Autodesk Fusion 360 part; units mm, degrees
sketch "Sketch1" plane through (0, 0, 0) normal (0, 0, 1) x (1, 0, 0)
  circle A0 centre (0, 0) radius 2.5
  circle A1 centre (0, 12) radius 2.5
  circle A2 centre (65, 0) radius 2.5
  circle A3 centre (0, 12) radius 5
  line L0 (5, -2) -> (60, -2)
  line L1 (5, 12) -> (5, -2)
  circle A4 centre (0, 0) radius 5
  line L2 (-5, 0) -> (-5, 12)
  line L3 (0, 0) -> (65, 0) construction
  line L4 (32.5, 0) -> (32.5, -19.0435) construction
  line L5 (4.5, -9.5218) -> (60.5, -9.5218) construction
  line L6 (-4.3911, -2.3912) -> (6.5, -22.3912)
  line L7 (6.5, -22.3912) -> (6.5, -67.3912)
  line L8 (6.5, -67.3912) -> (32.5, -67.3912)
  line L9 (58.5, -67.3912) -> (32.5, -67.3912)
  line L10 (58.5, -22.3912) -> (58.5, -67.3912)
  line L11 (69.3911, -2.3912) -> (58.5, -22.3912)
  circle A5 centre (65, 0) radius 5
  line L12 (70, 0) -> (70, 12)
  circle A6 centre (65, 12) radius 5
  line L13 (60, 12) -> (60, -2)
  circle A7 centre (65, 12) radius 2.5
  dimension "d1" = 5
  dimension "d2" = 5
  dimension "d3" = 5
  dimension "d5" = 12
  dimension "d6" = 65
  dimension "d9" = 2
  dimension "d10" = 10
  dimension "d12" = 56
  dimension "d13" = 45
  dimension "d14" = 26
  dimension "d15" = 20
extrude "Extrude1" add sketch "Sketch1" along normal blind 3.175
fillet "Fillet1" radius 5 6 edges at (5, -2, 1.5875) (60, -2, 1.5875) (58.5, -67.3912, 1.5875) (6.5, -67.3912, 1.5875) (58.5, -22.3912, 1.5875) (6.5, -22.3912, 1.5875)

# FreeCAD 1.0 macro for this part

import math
import FreeCAD as App
import Part
import Sketcher
from FreeCAD import Vector
Q = App.Units.Quantity


def edges_at(feature, points):
    """Names of the edges that pass closest to the given points."""
    edges = feature.Shape.Edges
    near = lambda p: min(range(len(edges)), key=lambda i: edges[i].distToShape(Part.Vertex(*p))[0])
    return sorted({f"Edge{near(p) + 1}" for p in points})

doc = App.newDocument("Part")
body = doc.addObject("PartDesign::Body", "Body")

sketch1 = doc.addObject("Sketcher::SketchObject", "Sketch")
body.addObject(sketch1)
sketch1.AttachmentSupport = (doc.XY_Plane, [""])
sketch1.MapMode = "FlatFace"
sketch1.addGeometry(Part.ArcOfCircle(Part.Circle(Vector(0, 12, 0), Vector(0, 0, 1), 5), math.radians(0), math.radians(180)), False)
sketch1.addGeometry(Part.LineSegment(Vector(-5, 12, 0), Vector(-5, 0, 0)), False)
sketch1.addGeometry(Part.ArcOfCircle(Part.Circle(Vector(0, 0, 0), Vector(0, 0, 1), 5), math.radians(180), math.radians(208.570768)), False)
sketch1.addGeometry(Part.LineSegment(Vector(-4.3911, -2.3912, 0), Vector(6.5, -22.3912, 0)), False)
sketch1.addGeometry(Part.LineSegment(Vector(6.5, -22.3912, 0), Vector(6.5, -67.3912, 0)), False)
sketch1.addGeometry(Part.LineSegment(Vector(6.5, -67.3912, 0), Vector(58.5, -67.3912, 0)), False)
sketch1.addGeometry(Part.LineSegment(Vector(58.5, -67.3912, 0), Vector(58.5, -22.3912, 0)), False)
sketch1.addGeometry(Part.LineSegment(Vector(58.5, -22.3912, 0), Vector(69.3911, -2.3912, 0)), False)
sketch1.addGeometry(Part.ArcOfCircle(Part.Circle(Vector(65, 0, 0), Vector(0, 0, 1), 5), math.radians(-28.570768), math.radians(0)), False)
sketch1.addGeometry(Part.LineSegment(Vector(70, 0, 0), Vector(70, 12, 0)), False)
sketch1.addGeometry(Part.ArcOfCircle(Part.Circle(Vector(65, 12, 0), Vector(0, 0, 1), 5), math.radians(0), math.radians(180)), False)
sketch1.addGeometry(Part.LineSegment(Vector(60, 12, 0), Vector(60, -2, 0)), False)
sketch1.addGeometry(Part.LineSegment(Vector(60, -2, 0), Vector(5, -2, 0)), False)
sketch1.addGeometry(Part.LineSegment(Vector(5, -2, 0), Vector(5, 12, 0)), False)
sketch1.addGeometry(Part.Circle(Vector(0, 12, 0), Vector(0, 0, 1), 2.5), False)
sketch1.addGeometry(Part.Circle(Vector(0, 0, 0), Vector(0, 0, 1), 2.5), False)
sketch1.addGeometry(Part.Circle(Vector(65, 0, 0), Vector(0, 0, 1), 2.5), False)
sketch1.addGeometry(Part.Circle(Vector(65, 12, 0), Vector(0, 0, 1), 2.5), False)
sketch1.addConstraint(Sketcher.Constraint("Tangent", 0, 2, 1, 1))
sketch1.addConstraint(Sketcher.Constraint("Tangent", 1, 2, 2, 1))
sketch1.addConstraint(Sketcher.Constraint("Tangent", 2, 2, 3, 1))
sketch1.addConstraint(Sketcher.Constraint("Coincident", 3, 2, 4, 1))
sketch1.addConstraint(Sketcher.Constraint("Coincident", 4, 2, 5, 1))
sketch1.addConstraint(Sketcher.Constraint("Coincident", 5, 2, 6, 1))
sketch1.addConstraint(Sketcher.Constraint("Coincident", 6, 2, 7, 1))
sketch1.addConstraint(Sketcher.Constraint("Tangent", 7, 2, 8, 1))
sketch1.addConstraint(Sketcher.Constraint("Tangent", 8, 2, 9, 1))
sketch1.addConstraint(Sketcher.Constraint("Tangent", 9, 2, 10, 1))
sketch1.addConstraint(Sketcher.Constraint("Tangent", 10, 2, 11, 1))
sketch1.addConstraint(Sketcher.Constraint("Coincident", 11, 2, 12, 1))
sketch1.addConstraint(Sketcher.Constraint("Coincident", 12, 2, 13, 1))
sketch1.addConstraint(Sketcher.Constraint("Tangent", 13, 2, 0, 1))
sketch1.addConstraint(Sketcher.Constraint("Vertical", 1))
sketch1.addConstraint(Sketcher.Constraint("Vertical", 4))
sketch1.addConstraint(Sketcher.Constraint("Horizontal", 5))
sketch1.addConstraint(Sketcher.Constraint("Vertical", 6))
sketch1.addConstraint(Sketcher.Constraint("Vertical", 9))
sketch1.addConstraint(Sketcher.Constraint("Vertical", 11))
sketch1.addConstraint(Sketcher.Constraint("Horizontal", 12))
sketch1.addConstraint(Sketcher.Constraint("Vertical", 13))
sketch1.addConstraint(Sketcher.Constraint("Coincident", 2, 3, -1, 1))
sketch1.addConstraint(Sketcher.Constraint("Coincident", 15, 3, -1, 1))
sketch1.addConstraint(Sketcher.Constraint("Coincident", 14, 3, 0, 3))
sketch1.addConstraint(Sketcher.Constraint("Coincident", 16, 3, 8, 3))
sketch1.addConstraint(Sketcher.Constraint("Coincident", 17, 3, 10, 3))
sketch1.addConstraint(Sketcher.Constraint("Equal", 0, 2))
sketch1.addConstraint(Sketcher.Constraint("Equal", 2, 8))
sketch1.addConstraint(Sketcher.Constraint("Equal", 8, 10))
sketch1.addConstraint(Sketcher.Constraint("Equal", 14, 15))
sketch1.addConstraint(Sketcher.Constraint("Equal", 15, 16))
sketch1.addConstraint(Sketcher.Constraint("Equal", 16, 17))
sketch1.addConstraint(Sketcher.Constraint("PointOnObject", 8, 3, -1))
sketch1.addConstraint(Sketcher.Constraint("Horizontal", 0, 3, 10, 3))
sketch1.addConstraint(Sketcher.Constraint("Horizontal", 3, 2, 6, 2))
sketch1.addConstraint(Sketcher.Constraint("Horizontal", 2, 2, 7, 2))
sketch1.addConstraint(Sketcher.Constraint("Diameter", 14, Q("5 mm")))
sketch1.addConstraint(Sketcher.Constraint("Radius", 0, Q("5 mm")))
sketch1.addConstraint(Sketcher.Constraint("DistanceY", 1, 2, 1, 1, Q("12 mm")))
sketch1.addConstraint(Sketcher.Constraint("DistanceY", 4, 2, 4, 1, Q("45 mm")))
sketch1.addConstraint(Sketcher.Constraint("DistanceX", -1, 1, 8, 3, Q("65 mm")))
sketch1.addConstraint(Sketcher.Constraint("DistanceY", 11, 2, -1, 1, Q("2 mm")))
sketch1.addConstraint(Sketcher.Constraint("DistanceY", 3, 2, 2, 2, Q("20 mm")))
sketch1.addConstraint(Sketcher.Constraint("DistanceX", 5, 1, 5, 2, Q("52 mm")))
pad1 = doc.addObject("PartDesign::Pad", "Pad")
body.addObject(pad1)
pad1.Profile = sketch1
pad1.Length = 3.175
doc.recompute()

fillet = doc.addObject("PartDesign::Fillet", "Fillet")
body.addObject(fillet)
fillet.Base = (pad1, edges_at(pad1, [
    (5, -2, 1.587),
    (60, -2, 1.587),
    (58.5, -67.391, 1.587),
    (6.5, -67.391, 1.587),
    (58.5, -22.391, 1.587),
    (6.5, -22.391, 1.587),
]))
fillet.Radius = 5

doc.recompute()
